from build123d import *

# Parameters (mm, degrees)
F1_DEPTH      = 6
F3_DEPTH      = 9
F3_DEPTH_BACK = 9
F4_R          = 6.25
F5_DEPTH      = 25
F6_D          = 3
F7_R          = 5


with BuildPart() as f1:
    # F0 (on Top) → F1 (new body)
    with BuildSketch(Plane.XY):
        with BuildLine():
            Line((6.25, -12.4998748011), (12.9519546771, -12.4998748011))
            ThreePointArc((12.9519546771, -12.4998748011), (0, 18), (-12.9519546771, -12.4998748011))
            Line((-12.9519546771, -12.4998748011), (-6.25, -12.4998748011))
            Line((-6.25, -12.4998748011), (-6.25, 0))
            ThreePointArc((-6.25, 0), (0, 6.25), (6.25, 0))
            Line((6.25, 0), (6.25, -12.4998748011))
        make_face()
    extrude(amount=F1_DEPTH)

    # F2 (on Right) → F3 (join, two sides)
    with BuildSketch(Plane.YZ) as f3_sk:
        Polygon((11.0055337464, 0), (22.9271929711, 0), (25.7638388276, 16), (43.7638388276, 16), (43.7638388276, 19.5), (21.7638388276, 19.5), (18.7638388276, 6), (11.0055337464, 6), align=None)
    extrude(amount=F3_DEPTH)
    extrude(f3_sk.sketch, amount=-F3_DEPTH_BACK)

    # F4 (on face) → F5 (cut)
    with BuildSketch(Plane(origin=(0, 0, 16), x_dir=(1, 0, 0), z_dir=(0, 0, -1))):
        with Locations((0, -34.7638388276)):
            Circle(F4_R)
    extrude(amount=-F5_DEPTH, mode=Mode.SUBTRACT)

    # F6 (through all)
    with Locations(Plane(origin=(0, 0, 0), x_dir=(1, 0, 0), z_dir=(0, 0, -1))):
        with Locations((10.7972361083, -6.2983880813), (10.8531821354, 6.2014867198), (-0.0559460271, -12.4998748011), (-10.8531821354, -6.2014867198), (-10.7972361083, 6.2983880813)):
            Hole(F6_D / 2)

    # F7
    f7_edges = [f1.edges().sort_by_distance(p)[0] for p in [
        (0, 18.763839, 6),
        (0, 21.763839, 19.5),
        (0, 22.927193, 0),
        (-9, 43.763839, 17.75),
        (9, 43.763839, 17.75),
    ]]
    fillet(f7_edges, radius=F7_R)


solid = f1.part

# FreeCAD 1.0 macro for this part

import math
import FreeCAD as App
import Part
import Sketcher
from FreeCAD import Vector
Q = App.Units.Quantity


def edges_at(feature, points):
    """Names of the edges that pass closest to the given points."""
    edges = feature.Shape.Edges
    near = lambda p: min(range(len(edges)), key=lambda i: edges[i].distToShape(Part.Vertex(*p))[0])
    return sorted({f"Edge{near(p) + 1}" for p in points})


def add_polygon(sketch, points):
    """Adds a closed chain of lines whose ends are joined by coincident constraints."""
    first, n = sketch.GeometryCount, len(points)
    for a, b in zip(points, points[1:] + points[:1]):
        sketch.addGeometry(Part.LineSegment(App.Vector(*a, 0), App.Vector(*b, 0)), False)
    for i in range(n):
        sketch.addConstraint(Sketcher.Constraint("Coincident", first + i, 2, first + (i + 1) % n, 1))

doc = App.newDocument("Part")
body = doc.addObject("PartDesign::Body", "Body")

# Sketch on XY plane
sketch1 = body.newObject("Sketcher::SketchObject", "Sketch")
sketch1.AttachmentSupport = (doc.getObject("XY_Plane"), [""])
sketch1.MapMode = "FlatFace"
sketch1.addGeometry(Part.LineSegment(Vector(6.25, -12.499875, 0), Vector(12.951955, -12.499875, 0)), False)
sketch1.addGeometry(Part.ArcOfCircle(Part.Circle(Vector(0, 0, 0), Vector(0, 0, 1), 18), math.radians(-43.982409), math.radians(223.982409)), False)
sketch1.addGeometry(Part.LineSegment(Vector(-12.951955, -12.499875, 0), Vector(-6.25, -12.499875, 0)), False)
sketch1.addGeometry(Part.LineSegment(Vector(-6.25, -12.499875, 0), Vector(-6.25, 0, 0)), False)
sketch1.addGeometry(Part.ArcOfCircle(Part.Circle(Vector(0, 0, 0), Vector(0, 0, 1), 6.25), math.radians(0), math.radians(180)), False)
sketch1.addGeometry(Part.LineSegment(Vector(6.25, 0, 0), Vector(6.25, -12.499875, 0)), False)
sketch1.addConstraint(Sketcher.Constraint("Coincident", 0, 2, 1, 1))
sketch1.addConstraint(Sketcher.Constraint("Coincident", 1, 2, 2, 1))
sketch1.addConstraint(Sketcher.Constraint("Coincident", 2, 2, 3, 1))
sketch1.addConstraint(Sketcher.Constraint("Tangent", 3, 2, 4, 2))
sketch1.addConstraint(Sketcher.Constraint("Tangent", 4, 1, 5, 1))
sketch1.addConstraint(Sketcher.Constraint("Coincident", 5, 2, 0, 1))
sketch1.addConstraint(Sketcher.Constraint("Horizontal", 0))
sketch1.addConstraint(Sketcher.Constraint("Horizontal", 2))
sketch1.addConstraint(Sketcher.Constraint("Vertical", 3))
sketch1.addConstraint(Sketcher.Constraint("Vertical", 5))
sketch1.addConstraint(Sketcher.Constraint("Coincident", 1, 3, -1, 1))
sketch1.addConstraint(Sketcher.Constraint("Coincident", 4, 3, -1, 1))
sketch1.addConstraint(Sketcher.Constraint("Horizontal", 0, 2, 1, 2))
sketch1.addConstraint(Sketcher.Constraint("Radius", 1, Q("18 mm")))
sketch1.addConstraint(Sketcher.Constraint("Radius", 4, Q("6.25 mm")))
sketch1.addConstraint(Sketcher.Constraint("DistanceX", 0, 1, 0, 2, Q("6.701955 mm")))
pad1 = body.newObject("PartDesign::Pad", "Pad")
pad1.Profile = sketch1
pad1.Length = 6

# Sketch on YZ plane
sketch2 = body.newObject("Sketcher::SketchObject", "Sketch001")
sketch2.AttachmentSupport = (doc.getObject("YZ_Plane"), [""])
sketch2.MapMode = "FlatFace"
add_polygon(sketch2, [(11.005534, 0), (22.927193, 0), (25.763839, 16), (43.763839, 16), (43.763839, 19.5), (21.763839, 19.5), (18.763839, 6), (11.005534, 6)])  # lines 0-7
sketch2.addConstraint(Sketcher.Constraint("Horizontal", 0))
sketch2.addConstraint(Sketcher.Constraint("Horizontal", 2))
sketch2.addConstraint(Sketcher.Constraint("Vertical", 3))
sketch2.addConstraint(Sketcher.Constraint("Horizontal", 4))
sketch2.addConstraint(Sketcher.Constraint("Horizontal", 6))
sketch2.addConstraint(Sketcher.Constraint("Vertical", 7))
sketch2.addConstraint(Sketcher.Constraint("PointOnObject", 0, 2, -1))
sketch2.addConstraint(Sketcher.Constraint("DistanceX", 2, 1, 2, 2, Q("18 mm")))
sketch2.addConstraint(Sketcher.Constraint("DistanceX", 4, 2, 4, 1, Q("22 mm")))
sketch2.addConstraint(Sketcher.Constraint("DistanceY", 7, 2, 7, 1, Q("6 mm")))
sketch2.addConstraint(Sketcher.Constraint("DistanceY", 3, 1, 3, 2, Q("3.5 mm")))
sketch2.addConstraint(Sketcher.Constraint("DistanceY", -1, 1, 1, 2, Q("16 mm")))
sketch2.addConstraint(Sketcher.Constraint("DistanceX", 5, 2, 1, 2, Q("7 mm")))
sketch2.addConstraint(Sketcher.Constraint("DistanceX", 0, 1, 0, 2, Q("11.921659 mm")))
sketch2.addConstraint(Sketcher.Constraint("Distance", 1, Q("16.24951 mm")))
sketch2.addConstraint(Sketcher.Constraint("DistanceX", -1, 1, 1, 2, Q("25.763839 mm")))
pad2 = body.newObject("PartDesign::Pad", "Pad001")
pad2.Profile = sketch2
pad2.Type = "TwoLengths"
pad2.Length = 9
pad2.Length2 = 9

# Sketch on XY plane
sketch3 = body.newObject("Sketcher::SketchObject", "Sketch002")
sketch3.AttachmentSupport = (doc.getObject("XY_Plane"), [""])
sketch3.MapMode = "FlatFace"
sketch3.AttachmentOffset = App.Placement(Vector(0, 0, 16), App.Rotation())
sketch3.addGeometry(Part.Circle(Vector(0, 34.763839, 0), Vector(0, 0, 1), 6.25), False)
sketch3.addConstraint(Sketcher.Constraint("PointOnObject", 0, 3, -2))
sketch3.addConstraint(Sketcher.Constraint("Diameter", 0, Q("12.5 mm")))
sketch3.addConstraint(Sketcher.Constraint("DistanceY", -1, 1, 0, 3, Q("34.763839 mm")))
pocket1 = body.newObject("PartDesign::Pocket", "Pocket")
pocket1.Profile = sketch3
pocket1.Length = 25
pocket1.Reversed = True

# Sketch on XY plane
sketch4 = body.newObject("Sketcher::SketchObject", "Sketch003")
sketch4.AttachmentSupport = (doc.getObject("XY_Plane"), [""])
sketch4.MapMode = "FlatFace"
sketch4.addGeometry(Part.Circle(Vector(10.797236, 6.298388, 0), Vector(0, 0, 1), 1.5), False)
sketch4.addGeometry(Part.Circle(Vector(10.853182, -6.201487, 0), Vector(0, 0, 1), 1.5), False)
sketch4.addGeometry(Part.Circle(Vector(-0.055946, 12.499875, 0), Vector(0, 0, 1), 1.5), False)
sketch4.addGeometry(Part.Circle(Vector(-10.853182, 6.201487, 0), Vector(0, 0, 1), 1.5), False)
sketch4.addGeometry(Part.Circle(Vector(-10.797236, -6.298388, 0), Vector(0, 0, 1), 1.5), False)
sketch4.addConstraint(Sketcher.Constraint("Equal", 0, 1))
sketch4.addConstraint(Sketcher.Constraint("Equal", 1, 2))
sketch4.addConstraint(Sketcher.Constraint("Equal", 2, 3))
sketch4.addConstraint(Sketcher.Constraint("Equal", 3, 4))
sketch4.addConstraint(Sketcher.Constraint("Symmetric", 1, 3, 3, 3, -1, 1))
sketch4.addConstraint(Sketcher.Constraint("Symmetric", 0, 3, 4, 3, -1, 1))
sketch4.addConstraint(Sketcher.Constraint("Diameter", 0, Q("3 mm")))
sketch4.addConstraint(Sketcher.Constraint("DistanceY", 3, 3, 0, 3, Q("0.096901 mm")))
sketch4.addConstraint(Sketcher.Constraint("DistanceY", -1, 1, 0, 3, Q("6.298388 mm")))
sketch4.addConstraint(Sketcher.Constraint("DistanceX", 2, 3, 1, 3, Q("10.909128 mm")))
sketch4.addConstraint(Sketcher.Constraint("DistanceY", 1, 3, 2, 3, Q("18.701362 mm")))
sketch4.addConstraint(Sketcher.Constraint("DistanceX", 3, 3, 0, 3, Q("21.650418 mm")))
sketch4.addConstraint(Sketcher.Constraint("DistanceX", -1, 1, 0, 3, Q("10.797236 mm")))
doc.recompute()
hole = body.newObject("PartDesign::Hole", "Hole")
hole.Profile = sketch4
hole.ThreadType = "None"
hole.Diameter = 3
hole.DepthType = "ThroughAll"
hole.Reversed = True
doc.recompute()

fillet = body.newObject("PartDesign::Fillet", "Fillet")
fillet.Base = (hole, edges_at(hole, [
    (0, 18.764, 6),
    (0, 21.764, 19.5),
    (0, 22.927, 0),
    (-9, 43.764, 17.75),
    (9, 43.764, 17.75),
]))
fillet.Radius = 5

doc.recompute()
